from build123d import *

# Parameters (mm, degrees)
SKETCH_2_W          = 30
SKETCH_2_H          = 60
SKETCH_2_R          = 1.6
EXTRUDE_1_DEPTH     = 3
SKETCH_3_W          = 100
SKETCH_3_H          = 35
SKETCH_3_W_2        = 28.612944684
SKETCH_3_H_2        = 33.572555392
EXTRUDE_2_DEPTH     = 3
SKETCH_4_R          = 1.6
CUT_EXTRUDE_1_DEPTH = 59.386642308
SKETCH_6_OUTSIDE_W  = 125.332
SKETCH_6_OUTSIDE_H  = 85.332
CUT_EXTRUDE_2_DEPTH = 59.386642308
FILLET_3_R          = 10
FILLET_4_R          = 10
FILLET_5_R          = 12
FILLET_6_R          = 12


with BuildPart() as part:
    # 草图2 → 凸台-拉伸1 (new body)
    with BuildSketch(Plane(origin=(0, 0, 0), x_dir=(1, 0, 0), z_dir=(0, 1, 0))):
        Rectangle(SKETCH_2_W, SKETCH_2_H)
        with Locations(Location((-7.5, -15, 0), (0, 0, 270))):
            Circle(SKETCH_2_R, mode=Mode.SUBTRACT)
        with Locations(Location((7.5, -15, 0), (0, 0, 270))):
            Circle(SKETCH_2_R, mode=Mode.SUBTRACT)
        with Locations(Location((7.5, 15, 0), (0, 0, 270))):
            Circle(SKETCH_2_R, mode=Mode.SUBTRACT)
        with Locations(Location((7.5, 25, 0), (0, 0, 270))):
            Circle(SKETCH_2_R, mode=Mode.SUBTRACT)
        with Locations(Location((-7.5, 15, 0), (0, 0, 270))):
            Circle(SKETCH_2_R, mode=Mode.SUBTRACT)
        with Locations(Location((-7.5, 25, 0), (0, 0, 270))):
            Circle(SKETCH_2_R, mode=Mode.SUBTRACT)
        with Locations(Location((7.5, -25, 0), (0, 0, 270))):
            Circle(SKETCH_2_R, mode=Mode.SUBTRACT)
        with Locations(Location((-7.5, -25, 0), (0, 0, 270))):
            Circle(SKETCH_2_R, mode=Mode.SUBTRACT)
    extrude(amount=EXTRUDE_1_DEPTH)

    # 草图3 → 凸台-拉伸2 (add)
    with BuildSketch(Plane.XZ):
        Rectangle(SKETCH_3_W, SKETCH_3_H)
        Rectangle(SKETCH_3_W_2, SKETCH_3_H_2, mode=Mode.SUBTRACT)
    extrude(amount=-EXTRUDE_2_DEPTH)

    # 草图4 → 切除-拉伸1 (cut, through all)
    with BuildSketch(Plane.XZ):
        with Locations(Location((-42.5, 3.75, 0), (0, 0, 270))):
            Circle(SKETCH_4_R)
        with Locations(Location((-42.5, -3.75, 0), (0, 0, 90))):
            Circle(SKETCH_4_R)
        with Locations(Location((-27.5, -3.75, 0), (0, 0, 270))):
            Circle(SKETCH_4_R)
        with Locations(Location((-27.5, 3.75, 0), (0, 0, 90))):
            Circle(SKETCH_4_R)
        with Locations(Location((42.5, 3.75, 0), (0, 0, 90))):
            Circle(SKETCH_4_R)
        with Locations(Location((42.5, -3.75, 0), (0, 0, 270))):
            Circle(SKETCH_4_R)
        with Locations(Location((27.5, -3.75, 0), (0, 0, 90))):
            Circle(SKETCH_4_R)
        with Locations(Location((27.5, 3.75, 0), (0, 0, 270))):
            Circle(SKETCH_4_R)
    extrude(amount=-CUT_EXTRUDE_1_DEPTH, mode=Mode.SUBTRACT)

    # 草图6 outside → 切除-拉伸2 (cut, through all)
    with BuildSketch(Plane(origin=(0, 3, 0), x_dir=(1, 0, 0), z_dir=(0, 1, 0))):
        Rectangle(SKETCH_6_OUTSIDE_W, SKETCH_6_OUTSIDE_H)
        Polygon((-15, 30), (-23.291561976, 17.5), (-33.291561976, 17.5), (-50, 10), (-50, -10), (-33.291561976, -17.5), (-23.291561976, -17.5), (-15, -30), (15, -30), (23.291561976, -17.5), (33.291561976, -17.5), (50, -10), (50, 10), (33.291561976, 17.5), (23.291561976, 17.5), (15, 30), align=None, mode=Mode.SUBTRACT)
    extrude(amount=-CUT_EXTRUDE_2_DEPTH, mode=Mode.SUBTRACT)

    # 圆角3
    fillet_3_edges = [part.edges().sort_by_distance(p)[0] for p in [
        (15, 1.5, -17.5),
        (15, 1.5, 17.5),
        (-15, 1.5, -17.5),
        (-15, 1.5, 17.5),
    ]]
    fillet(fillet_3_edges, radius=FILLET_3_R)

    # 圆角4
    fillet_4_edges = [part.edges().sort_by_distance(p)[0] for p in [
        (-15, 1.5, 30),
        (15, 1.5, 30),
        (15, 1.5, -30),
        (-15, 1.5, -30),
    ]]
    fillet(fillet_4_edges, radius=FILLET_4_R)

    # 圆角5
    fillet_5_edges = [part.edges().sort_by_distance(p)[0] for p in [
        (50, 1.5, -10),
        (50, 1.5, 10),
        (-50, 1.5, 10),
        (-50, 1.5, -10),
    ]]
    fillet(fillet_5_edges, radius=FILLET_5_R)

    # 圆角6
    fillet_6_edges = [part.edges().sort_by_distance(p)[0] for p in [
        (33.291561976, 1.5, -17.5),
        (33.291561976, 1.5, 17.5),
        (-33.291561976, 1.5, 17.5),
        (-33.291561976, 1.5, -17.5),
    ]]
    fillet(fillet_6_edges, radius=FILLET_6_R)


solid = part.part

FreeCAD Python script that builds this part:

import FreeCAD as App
import Part
import Sketcher
Q = App.Units.Quantity


def edges_at(feature, points):
    """Names of the edges that pass closest to the given points."""
    edges = feature.Shape.Edges
    near = lambda p: min(range(len(edges)), key=lambda i: edges[i].distToShape(Part.Vertex(*p))[0])
    return sorted({f"Edge{near(p) + 1}" for p in points})

doc = App.newDocument("Part")
params = doc.addObject("Spreadsheet::Sheet", "Params")
for row, (alias, value) in enumerate([
    ("sketch1_diameter", "3.2 mm"),
    ("sketch1_width", "30 mm"),
    ("sketch1_height", "60 mm"),
    ("pad1_length", "3 mm"),
    ("sketch2_width", "100 mm"),
    ("sketch2_height", "35 mm"),
    ("pad2_length", "3 mm"),
    ("sketch3_diameter", "3.2 mm"),
    ("sketch4_width", "30 mm"),
    ("sketch4_width2", "10 mm"),
    ("sketch4_height", "20 mm"),
    ("sketch4_length", "15 mm"),
    ("fillet_radius", "10 mm"),
    ("fillet2_radius", "10 mm"),
    ("fillet3_radius", "12 mm"),
    ("fillet4_radius", "12 mm"),
], start=1):
    params.set(f"A{row}", alias)
    params.set(f"B{row}", "=" + value)
    params.setAlias(f"B{row}", alias)

body = doc.addObject("PartDesign::Body", "Body")

sketch1 = body.newObject("Sketcher::SketchObject", "Sketch")
sketch1.AttachmentSupport = (doc.getObject("XZ_Plane"), [""])
sketch1.MapMode = "FlatFace"
sketch1.addGeometry(Part.LineSegment(App.Vector(-15, -30, 0), App.Vector(-15, 30, 0)), False)
sketch1.addGeometry(Part.LineSegment(App.Vector(-15, 30, 0), App.Vector(15, 30, 0)), False)
sketch1.addGeometry(Part.LineSegment(App.Vector(15, 30, 0), App.Vector(15, -30, 0)), False)
sketch1.addGeometry(Part.LineSegment(App.Vector(15, -30, 0), App.Vector(-15, -30, 0)), False)
sketch1.addGeometry(Part.Circle(App.Vector(-7.5, 25, 0), App.Vector(0, 0, 1), 1.6), False)
sketch1.addGeometry(Part.Circle(App.Vector(-7.5, 15, 0), App.Vector(0, 0, 1), 1.6), False)
sketch1.addGeometry(Part.Circle(App.Vector(7.5, 25, 0), App.Vector(0, 0, 1), 1.6), False)
sketch1.addGeometry(Part.Circle(App.Vector(7.5, 15, 0), App.Vector(0, 0, 1), 1.6), False)
sketch1.addGeometry(Part.Circle(App.Vector(-7.5, -15, 0), App.Vector(0, 0, 1), 1.6), False)
sketch1.addGeometry(Part.Circle(App.Vector(-7.5, -25, 0), App.Vector(0, 0, 1), 1.6), False)
sketch1.addGeometry(Part.Circle(App.Vector(7.5, -15, 0), App.Vector(0, 0, 1), 1.6), False)
sketch1.addGeometry(Part.Circle(App.Vector(7.5, -25, 0), App.Vector(0, 0, 1), 1.6), False)
sketch1.addConstraint(Sketcher.Constraint("Coincident", 0, 2, 1, 1))
sketch1.addConstraint(Sketcher.Constraint("Coincident", 1, 2, 2, 1))
sketch1.addConstraint(Sketcher.Constraint("Coincident", 2, 2, 3, 1))
sketch1.addConstraint(Sketcher.Constraint("Coincident", 3, 2, 0, 1))
sketch1.addConstraint(Sketcher.Constraint("Vertical", 0))
sketch1.addConstraint(Sketcher.Constraint("Horizontal", 1))
sketch1.addConstraint(Sketcher.Constraint("Vertical", 2))
sketch1.addConstraint(Sketcher.Constraint("Horizontal", 3))
sketch1.addConstraint(Sketcher.Constraint("Equal", 4, 5))
sketch1.addConstraint(Sketcher.Constraint("Equal", 5, 6))
sketch1.addConstraint(Sketcher.Constraint("Equal", 6, 7))
sketch1.addConstraint(Sketcher.Constraint("Equal", 7, 8))
sketch1.addConstraint(Sketcher.Constraint("Equal", 8, 9))
sketch1.addConstraint(Sketcher.Constraint("Equal", 9, 10))
sketch1.addConstraint(Sketcher.Constraint("Equal", 10, 11))
sketch1.addConstraint(Sketcher.Constraint("Symmetric", 7, 3, 8, 3, -1, 1))
sketch1.addConstraint(Sketcher.Constraint("Symmetric", 6, 3, 9, 3, -1, 1))
sketch1.addConstraint(Sketcher.Constraint("Symmetric", 5, 3, 10, 3, -1, 1))
sketch1.addConstraint(Sketcher.Constraint("Symmetric", 4, 3, 11, 3, -1, 1))
sketch1.addConstraint(Sketcher.Constraint("Symmetric", 0, 2, 2, 2, -1, 1))
sketch1.addConstraint(Sketcher.Constraint("Symmetric", 4, 3, 6, 3, -2))
sketch1.addConstraint(Sketcher.Constraint("Symmetric", 5, 3, 7, 3, -2))
sketch1.addConstraint(Sketcher.Constraint("Vertical", 4, 3, 5, 3))
sketch1.addConstraint(Sketcher.Constraint("Diameter", 4, Q("3.2 mm")))
sketch1.addConstraint(Sketcher.Constraint("DistanceX", 1, 1, 1, 2, Q("30 mm")))
sketch1.addConstraint(Sketcher.Constraint("DistanceY", 0, 1, 0, 2, Q("60 mm")))
sketch1.addConstraint(Sketcher.Constraint("DistanceY", -1, 1, 4, 3, Q("25 mm")))
sketch1.addConstraint(Sketcher.Constraint("DistanceY", -1, 1, 5, 3, Q("15 mm")))
sketch1.addConstraint(Sketcher.Constraint("DistanceX", 4, 3, 6, 3, Q("15 mm")))
sketch1.setExpression("Constraints[23]", "Params.sketch1_diameter")
sketch1.setExpression("Constraints[24]", "Params.sketch1_width")
sketch1.setExpression("Constraints[25]", "Params.sketch1_height")
pad1 = body.newObject("PartDesign::Pad", "Pad")
pad1.Profile = sketch1
pad1.setExpression("Length", "Params.pad1_length")
pad1.Reversed = True

sketch2 = body.newObject("Sketcher::SketchObject", "Sketch001")
sketch2.AttachmentSupport = (doc.getObject("XZ_Plane"), [""])
sketch2.MapMode = "FlatFace"
sketch2.addGeometry(Part.LineSegment(App.Vector(-50, 18, 0), App.Vector(-50, -18, 0)), False)
sketch2.addGeometry(Part.LineSegment(App.Vector(-50, -18, 0), App.Vector(50, -18, 0)), False)
sketch2.addGeometry(Part.LineSegment(App.Vector(50, -18, 0), App.Vector(50, 18, 0)), False)
sketch2.addGeometry(Part.LineSegment(App.Vector(50, 18, 0), App.Vector(-50, 18, 0)), False)
sketch2.addGeometry(Part.LineSegment(App.Vector(14, -17, 0), App.Vector(-14, -17, 0)), False)
sketch2.addGeometry(Part.LineSegment(App.Vector(-14, -17, 0), App.Vector(-14, 17, 0)), False)
sketch2.addGeometry(Part.LineSegment(App.Vector(-14, 17, 0), App.Vector(14, 17, 0)), False)
sketch2.addGeometry(Part.LineSegment(App.Vector(14, 17, 0), App.Vector(14, -17, 0)), False)
sketch2.addConstraint(Sketcher.Constraint("Coincident", 0, 2, 1, 1))
sketch2.addConstraint(Sketcher.Constraint("Coincident", 1, 2, 2, 1))
sketch2.addConstraint(Sketcher.Constraint("Coincident", 2, 2, 3, 1))
sketch2.addConstraint(Sketcher.Constraint("Coincident", 3, 2, 0, 1))
sketch2.addConstraint(Sketcher.Constraint("Coincident", 4, 2, 5, 1))
sketch2.addConstraint(Sketcher.Constraint("Coincident", 5, 2, 6, 1))
sketch2.addConstraint(Sketcher.Constraint("Coincident", 6, 2, 7, 1))
sketch2.addConstraint(Sketcher.Constraint("Coincident", 7, 2, 4, 1))
sketch2.addConstraint(Sketcher.Constraint("Vertical", 0))
sketch2.addConstraint(Sketcher.Constraint("Horizontal", 1))
sketch2.addConstraint(Sketcher.Constraint("Vertical", 2))
sketch2.addConstraint(Sketcher.Constraint("Horizontal", 3))
sketch2.addConstraint(Sketcher.Constraint("Horizontal", 4))
sketch2.addConstraint(Sketcher.Constraint("Vertical", 5))
sketch2.addConstraint(Sketcher.Constraint("Horizontal", 6))
sketch2.addConstraint(Sketcher.Constraint("Vertical", 7))
sketch2.addConstraint(Sketcher.Constraint("Symmetric", 0, 2, 2, 2, -1, 1))
sketch2.addConstraint(Sketcher.Constraint("Symmetric", 4, 2, 6, 2, -1, 1))
sketch2.addConstraint(Sketcher.Constraint("DistanceX", 1, 1, 1, 2, Q("100 mm")))
sketch2.addConstraint(Sketcher.Constraint("DistanceY", 0, 2, 0, 1, Q("35 mm")))
sketch2.addConstraint(Sketcher.Constraint("DistanceX", 4, 2, 4, 1, Q("28.612945 mm")))
sketch2.addConstraint(Sketcher.Constraint("DistanceY", 5, 1, 5, 2, Q("33.572555 mm")))
sketch2.setExpression("Constraints[18]", "Params.sketch2_width")
sketch2.setExpression("Constraints[19]", "Params.sketch2_height")
pad2 = body.newObject("PartDesign::Pad", "Pad001")
pad2.Profile = sketch2
pad2.setExpression("Length", "Params.pad2_length")
pad2.Reversed = True

sketch3 = body.newObject("Sketcher::SketchObject", "Sketch002")
sketch3.AttachmentSupport = (doc.getObject("XZ_Plane"), [""])
sketch3.MapMode = "FlatFace"
sketch3.addGeometry(Part.Circle(App.Vector(-42.5, 3.8, 0), App.Vector(0, 0, 1), 1.6), False)
sketch3.addGeometry(Part.Circle(App.Vector(-42.5, -3.8, 0), App.Vector(0, 0, 1), 1.6), False)
sketch3.addGeometry(Part.Circle(App.Vector(-27.5, -3.8, 0), App.Vector(0, 0, 1), 1.6), False)
sketch3.addGeometry(Part.Circle(App.Vector(-27.5, 3.8, 0), App.Vector(0, 0, 1), 1.6), False)
sketch3.addGeometry(Part.Circle(App.Vector(42.5, 3.8, 0), App.Vector(0, 0, 1), 1.6), False)
sketch3.addGeometry(Part.Circle(App.Vector(42.5, -3.8, 0), App.Vector(0, 0, 1), 1.6), False)
sketch3.addGeometry(Part.Circle(App.Vector(27.5, -3.8, 0), App.Vector(0, 0, 1), 1.6), False)
sketch3.addGeometry(Part.Circle(App.Vector(27.5, 3.8, 0), App.Vector(0, 0, 1), 1.6), False)
sketch3.addConstraint(Sketcher.Constraint("Equal", 0, 1))
sketch3.addConstraint(Sketcher.Constraint("Equal", 1, 2))
sketch3.addConstraint(Sketcher.Constraint("Equal", 2, 3))
sketch3.addConstraint(Sketcher.Constraint("Equal", 3, 4))
sketch3.addConstraint(Sketcher.Constraint("Equal", 4, 5))
sketch3.addConstraint(Sketcher.Constraint("Equal", 5, 6))
sketch3.addConstraint(Sketcher.Constraint("Equal", 6, 7))
sketch3.addConstraint(Sketcher.Constraint("Symmetric", 1, 3, 4, 3, -1, 1))
sketch3.addConstraint(Sketcher.Constraint("Symmetric", 0, 3, 5, 3, -1, 1))
sketch3.addConstraint(Sketcher.Constraint("Symmetric", 3, 3, 6, 3, -1, 1))
sketch3.addConstraint(Sketcher.Constraint("Symmetric", 2, 3, 7, 3, -1, 1))
sketch3.addConstraint(Sketcher.Constraint("Symmetric", 0, 3, 4, 3, -2))
sketch3.addConstraint(Sketcher.Constraint("Symmetric", 2, 3, 6, 3, -2))
sketch3.addConstraint(Sketcher.Constraint("Horizontal", 1, 3, 2, 3))
sketch3.addConstraint(Sketcher.Constraint("Diameter", 0, Q("3.2 mm")))
sketch3.addConstraint(Sketcher.Constraint("DistanceX", 1, 3, 2, 3, Q("15 mm")))
sketch3.addConstraint(Sketcher.Constraint("DistanceX", 3, 3, 4, 3, Q("70 mm")))
sketch3.addConstraint(Sketcher.Constraint("DistanceY", 1, 3, 0, 3, Q("7.5 mm")))
sketch3.setExpression("Constraints[14]", "Params.sketch3_diameter")
pocket1 = body.newObject("PartDesign::Pocket", "Pocket")
pocket1.Profile = sketch3
pocket1.Type = "ThroughAll"

sketch4 = body.newObject("Sketcher::SketchObject", "Sketch003")
sketch4.AttachmentSupport = (doc.getObject("XZ_Plane"), [""])
sketch4.MapMode = "FlatFace"
sketch4.AttachmentOffset = App.Placement(App.Vector(0, 0, -3), App.Rotation())
sketch4.addGeometry(Part.LineSegment(App.Vector(-63, -43, 0), App.Vector(-63, 43, 0)), False)
sketch4.addGeometry(Part.LineSegment(App.Vector(-63, 43, 0), App.Vector(63, 43, 0)), False)
sketch4.addGeometry(Part.LineSegment(App.Vector(63, 43, 0), App.Vector(63, -43, 0)), False)
sketch4.addGeometry(Part.LineSegment(App.Vector(63, -43, 0), App.Vector(-63, -43, 0)), False)
sketch4.addGeometry(Part.LineSegment(App.Vector(-23, -18, 0), App.Vector(-15, -30, 0)), False)
sketch4.addGeometry(Part.LineSegment(App.Vector(-15, -30, 0), App.Vector(15, -30, 0)), False)
sketch4.addGeometry(Part.LineSegment(App.Vector(15, -30, 0), App.Vector(23, -18, 0)), False)
sketch4.addGeometry(Part.LineSegment(App.Vector(23, -18, 0), App.Vector(33, -18, 0)), False)
sketch4.addGeometry(Part.LineSegment(App.Vector(33, -18, 0), App.Vector(50, -10, 0)), False)
sketch4.addGeometry(Part.LineSegment(App.Vector(50, -10, 0), App.Vector(50, 10, 0)), False)
sketch4.addGeometry(Part.LineSegment(App.Vector(50, 10, 0), App.Vector(33, 18, 0)), False)
sketch4.addGeometry(Part.LineSegment(App.Vector(33, 18, 0), App.Vector(23, 18, 0)), False)
sketch4.addGeometry(Part.LineSegment(App.Vector(23, 18, 0), App.Vector(15, 30, 0)), False)
sketch4.addGeometry(Part.LineSegment(App.Vector(15, 30, 0), App.Vector(-15, 30, 0)), False)
sketch4.addGeometry(Part.LineSegment(App.Vector(-15, 30, 0), App.Vector(-23, 18, 0)), False)
sketch4.addGeometry(Part.LineSegment(App.Vector(-23, 18, 0), App.Vector(-33, 18, 0)), False)
sketch4.addGeometry(Part.LineSegment(App.Vector(-33, 18, 0), App.Vector(-50, 10, 0)), False)
sketch4.addGeometry(Part.LineSegment(App.Vector(-50, 10, 0), App.Vector(-50, -10, 0)), False)
sketch4.addGeometry(Part.LineSegment(App.Vector(-50, -10, 0), App.Vector(-33, -18, 0)), False)
sketch4.addGeometry(Part.LineSegment(App.Vector(-33, -18, 0), App.Vector(-23, -18, 0)), False)
sketch4.addConstraint(Sketcher.Constraint("Coincident", 0, 2, 1, 1))
sketch4.addConstraint(Sketcher.Constraint("Coincident", 1, 2, 2, 1))
sketch4.addConstraint(Sketcher.Constraint("Coincident", 2, 2, 3, 1))
sketch4.addConstraint(Sketcher.Constraint("Coincident", 3, 2, 0, 1))
sketch4.addConstraint(Sketcher.Constraint("Coincident", 4, 2, 5, 1))
sketch4.addConstraint(Sketcher.Constraint("Coincident", 5, 2, 6, 1))
sketch4.addConstraint(Sketcher.Constraint("Coincident", 6, 2, 7, 1))
sketch4.addConstraint(Sketcher.Constraint("Coincident", 7, 2, 8, 1))
sketch4.addConstraint(Sketcher.Constraint("Coincident", 8, 2, 9, 1))
sketch4.addConstraint(Sketcher.Constraint("Coincident", 9, 2, 10, 1))
sketch4.addConstraint(Sketcher.Constraint("Coincident", 10, 2, 11, 1))
sketch4.addConstraint(Sketcher.Constraint("Coincident", 11, 2, 12, 1))
sketch4.addConstraint(Sketcher.Constraint("Coincident", 12, 2, 13, 1))
sketch4.addConstraint(Sketcher.Constraint("Coincident", 13, 2, 14, 1))
sketch4.addConstraint(Sketcher.Constraint("Coincident", 14, 2, 15, 1))
sketch4.addConstraint(Sketcher.Constraint("Coincident", 15, 2, 16, 1))
sketch4.addConstraint(Sketcher.Constraint("Coincident", 16, 2, 17, 1))
sketch4.addConstraint(Sketcher.Constraint("Coincident", 17, 2, 18, 1))
sketch4.addConstraint(Sketcher.Constraint("Coincident", 18, 2, 19, 1))
sketch4.addConstraint(Sketcher.Constraint("Coincident", 19, 2, 4, 1))
sketch4.addConstraint(Sketcher.Constraint("Vertical", 0))
sketch4.addConstraint(Sketcher.Constraint("Horizontal", 1))
sketch4.addConstraint(Sketcher.Constraint("Vertical", 2))
sketch4.addConstraint(Sketcher.Constraint("Horizontal", 3))
sketch4.addConstraint(Sketcher.Constraint("Horizontal", 5))
sketch4.addConstraint(Sketcher.Constraint("Horizontal", 7))
sketch4.addConstraint(Sketcher.Constraint("Vertical", 9))
sketch4.addConstraint(Sketcher.Constraint("Horizontal", 11))
sketch4.addConstraint(Sketcher.Constraint("Horizontal", 13))
sketch4.addConstraint(Sketcher.Constraint("Horizontal", 15))
sketch4.addConstraint(Sketcher.Constraint("Vertical", 17))
sketch4.addConstraint(Sketcher.Constraint("Horizontal", 19))
sketch4.addConstraint(Sketcher.Constraint("Symmetric", 0, 2, 2, 2, -1, 1))
sketch4.addConstraint(Sketcher.Constraint("Symmetric", 4, 2, 12, 2, -1, 1))
sketch4.addConstraint(Sketcher.Constraint("Symmetric", 6, 2, 14, 2, -1, 1))
sketch4.addConstraint(Sketcher.Constraint("Symmetric", 8, 2, 16, 2, -1, 1))
sketch4.addConstraint(Sketcher.Constraint("Symmetric", 10, 2, 18, 2, -1, 1))
sketch4.addConstraint(Sketcher.Constraint("Symmetric", 11, 2, 14, 2, -2))
sketch4.addConstraint(Sketcher.Constraint("Parallel", 4, 12))
sketch4.addConstraint(Sketcher.Constraint("Parallel", 6, 14))
sketch4.addConstraint(Sketcher.Constraint("Parallel", 8, 16))
sketch4.addConstraint(Sketcher.Constraint("Parallel", 10, 18))
sketch4.addConstraint(Sketcher.Constraint("Horizontal", 9, 2, 16, 2))
sketch4.addConstraint(Sketcher.Constraint("Vertical", 7, 2, 10, 2))
sketch4.addConstraint(Sketcher.Constraint("Vertical", 5, 2, 12, 2))
sketch4.addConstraint(Sketcher.Constraint("DistanceX", 5, 1, 5, 2, Q("30 mm")))
sketch4.addConstraint(Sketcher.Constraint("DistanceX", 7, 1, 7, 2, Q("10 mm")))
sketch4.addConstraint(Sketcher.Constraint("DistanceY", 9, 1, 9, 2, Q("20 mm")))
sketch4.addConstraint(Sketcher.Constraint("Distance", 4, Q("15 mm")))
sketch4.addConstraint(Sketcher.Constraint("DistanceY", 4, 2, -1, 1, Q("30 mm")))
sketch4.addConstraint(Sketcher.Constraint("DistanceX", -1, 1, 8, 2, Q("50 mm")))
sketch4.addConstraint(Sketcher.Constraint("DistanceY", 7, 2, 10, 2, Q("35 mm")))
sketch4.addConstraint(Sketcher.Constraint("DistanceX", 1, 1, 1, 2, Q("125.332 mm")))
sketch4.addConstraint(Sketcher.Constraint("DistanceY", 0, 1, 0, 2, Q("85.332 mm")))
sketch4.setExpression("Constraints[45]", "Params.sketch4_width")
sketch4.setExpression("Constraints[46]", "Params.sketch4_width2")
sketch4.setExpression("Constraints[47]", "Params.sketch4_height")
sketch4.setExpression("Constraints[48]", "Params.sketch4_length")
pocket2 = body.newObject("PartDesign::Pocket", "Pocket001")
pocket2.Profile = sketch4
pocket2.Type = "ThroughAll"
pocket2.Reversed = True
doc.recompute()

fillet = body.newObject("PartDesign::Fillet", "Fillet")
fillet.Base = (pocket2, edges_at(pocket2, [
    (15, 1.5, -17.5),
    (15, 1.5, 17.5),
    (-15, 1.5, -17.5),
    (-15, 1.5, 17.5),
]))
fillet.setExpression("Radius", "Params.fillet_radius")
doc.recompute()

fillet2 = body.newObject("PartDesign::Fillet", "Fillet001")
fillet2.Base = (fillet, edges_at(fillet, [
    (-15, 1.5, 30),
    (15, 1.5, 30),
    (15, 1.5, -30),
    (-15, 1.5, -30),
]))
fillet2.setExpression("Radius", "Params.fillet2_radius")
doc.recompute()

fillet3 = body.newObject("PartDesign::Fillet", "Fillet002")
fillet3.Base = (fillet2, edges_at(fillet2, [
    (50, 1.5, -10),
    (50, 1.5, 10),
    (-50, 1.5, 10),
    (-50, 1.5, -10),
]))
fillet3.setExpression("Radius", "Params.fillet3_radius")
doc.recompute()

fillet4 = body.newObject("PartDesign::Fillet", "Fillet003")
fillet4.Base = (fillet3, edges_at(fillet3, [
    (33.292, 1.5, -17.5),
    (33.292, 1.5, 17.5),
    (-33.292, 1.5, 17.5),
    (-33.292, 1.5, -17.5),
]))
fillet4.setExpression("Radius", "Params.fillet4_radius")

doc.recompute()
